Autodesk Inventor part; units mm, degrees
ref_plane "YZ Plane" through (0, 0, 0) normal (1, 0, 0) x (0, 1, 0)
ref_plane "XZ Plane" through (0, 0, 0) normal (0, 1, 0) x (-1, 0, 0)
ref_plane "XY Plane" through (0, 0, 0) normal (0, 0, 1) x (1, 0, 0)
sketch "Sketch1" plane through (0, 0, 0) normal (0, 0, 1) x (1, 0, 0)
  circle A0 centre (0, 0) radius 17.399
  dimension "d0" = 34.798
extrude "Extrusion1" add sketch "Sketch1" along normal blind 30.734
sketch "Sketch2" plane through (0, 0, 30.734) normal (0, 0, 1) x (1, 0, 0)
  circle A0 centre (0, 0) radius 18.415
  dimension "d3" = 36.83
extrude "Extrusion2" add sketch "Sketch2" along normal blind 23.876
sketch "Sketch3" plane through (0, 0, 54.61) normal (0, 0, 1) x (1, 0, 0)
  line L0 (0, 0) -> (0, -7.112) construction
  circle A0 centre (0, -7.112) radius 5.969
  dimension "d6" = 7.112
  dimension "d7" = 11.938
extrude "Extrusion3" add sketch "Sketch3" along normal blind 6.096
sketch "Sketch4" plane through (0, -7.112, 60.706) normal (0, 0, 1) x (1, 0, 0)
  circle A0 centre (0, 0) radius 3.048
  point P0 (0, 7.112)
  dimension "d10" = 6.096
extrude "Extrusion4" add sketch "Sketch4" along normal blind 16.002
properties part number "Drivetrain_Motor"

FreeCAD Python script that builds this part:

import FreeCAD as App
import Part
import Sketcher

V = App.Vector
Q = App.Units.Quantity

doc = App.newDocument("Part")
body = doc.addObject("PartDesign::Body", "Body")

sketch1 = body.newObject("Sketcher::SketchObject", "Sketch")
sketch1.AttachmentSupport = (doc.getObject("XY_Plane"), [""])
sketch1.MapMode = "FlatFace"
sketch1.addGeometry(Part.Circle(V(0, 0, 0), V(0, 0, 1), 17), False)
sketch1.addConstraint([
    Sketcher.Constraint("Coincident", 0, 3, -1, 1),
    Sketcher.Constraint("Diameter", 0, Q("1.37 in")),
])
pad1 = body.newObject("PartDesign::Pad", "Pad")
pad1.Profile = sketch1
pad1.Length = Q("1.21 in")

sketch2 = body.newObject("Sketcher::SketchObject", "Sketch001")
sketch2.AttachmentSupport = (doc.getObject("XY_Plane"), [""])
sketch2.MapMode = "FlatFace"
sketch2.AttachmentOffset = App.Placement(V(0, 0, 1.21 * 25.4), App.Rotation())
sketch2.addGeometry(Part.Circle(V(0, 0, 0), V(0, 0, 1), 18), False)
sketch2.addConstraint([
    Sketcher.Constraint("Coincident", 0, 3, -1, 1),
    Sketcher.Constraint("Diameter", 0, Q("1.45 in")),
])
pad2 = body.newObject("PartDesign::Pad", "Pad001")
pad2.Profile = sketch2
pad2.Length = Q("0.94 in")

sketch3 = body.newObject("Sketcher::SketchObject", "Sketch002")
sketch3.AttachmentSupport = (doc.getObject("XY_Plane"), [""])
sketch3.MapMode = "FlatFace"
sketch3.AttachmentOffset = App.Placement(V(0, 0, 2.15 * 25.4), App.Rotation())
sketch3.addGeometry(Part.Circle(V(0, -7, 0), V(0, 0, 1), 6), False)
sketch3.addConstraint([
    Sketcher.Constraint("PointOnObject", 0, 3, -2),
    Sketcher.Constraint("Diameter", 0, Q("0.47 in")),
    Sketcher.Constraint("DistanceY", 0, 3, -1, 1, Q("0.28 in")),
])
pad3 = body.newObject("PartDesign::Pad", "Pad002")
pad3.Profile = sketch3
pad3.Length = Q("0.24 in")

sketch4 = body.newObject("Sketcher::SketchObject", "Sketch003")
sketch4.AttachmentSupport = (doc.getObject("XY_Plane"), [""])
sketch4.MapMode = "FlatFace"
sketch4.AttachmentOffset = App.Placement(V(0, 0, 2.39 * 25.4), App.Rotation())
sketch4.addGeometry(Part.Circle(V(0, -7.1, 0), V(0, 0, 1), 3), False)
sketch4.addConstraint([
    Sketcher.Constraint("PointOnObject", 0, 3, -2),
    Sketcher.Constraint("Diameter", 0, Q("0.24 in")),
    Sketcher.Constraint("DistanceY", 0, 3, -1, 1, Q("0.28 in")),
])
pad4 = body.newObject("PartDesign::Pad", "Pad003")
pad4.Profile = sketch4
pad4.Length = Q("0.63 in")

doc.recompute()
